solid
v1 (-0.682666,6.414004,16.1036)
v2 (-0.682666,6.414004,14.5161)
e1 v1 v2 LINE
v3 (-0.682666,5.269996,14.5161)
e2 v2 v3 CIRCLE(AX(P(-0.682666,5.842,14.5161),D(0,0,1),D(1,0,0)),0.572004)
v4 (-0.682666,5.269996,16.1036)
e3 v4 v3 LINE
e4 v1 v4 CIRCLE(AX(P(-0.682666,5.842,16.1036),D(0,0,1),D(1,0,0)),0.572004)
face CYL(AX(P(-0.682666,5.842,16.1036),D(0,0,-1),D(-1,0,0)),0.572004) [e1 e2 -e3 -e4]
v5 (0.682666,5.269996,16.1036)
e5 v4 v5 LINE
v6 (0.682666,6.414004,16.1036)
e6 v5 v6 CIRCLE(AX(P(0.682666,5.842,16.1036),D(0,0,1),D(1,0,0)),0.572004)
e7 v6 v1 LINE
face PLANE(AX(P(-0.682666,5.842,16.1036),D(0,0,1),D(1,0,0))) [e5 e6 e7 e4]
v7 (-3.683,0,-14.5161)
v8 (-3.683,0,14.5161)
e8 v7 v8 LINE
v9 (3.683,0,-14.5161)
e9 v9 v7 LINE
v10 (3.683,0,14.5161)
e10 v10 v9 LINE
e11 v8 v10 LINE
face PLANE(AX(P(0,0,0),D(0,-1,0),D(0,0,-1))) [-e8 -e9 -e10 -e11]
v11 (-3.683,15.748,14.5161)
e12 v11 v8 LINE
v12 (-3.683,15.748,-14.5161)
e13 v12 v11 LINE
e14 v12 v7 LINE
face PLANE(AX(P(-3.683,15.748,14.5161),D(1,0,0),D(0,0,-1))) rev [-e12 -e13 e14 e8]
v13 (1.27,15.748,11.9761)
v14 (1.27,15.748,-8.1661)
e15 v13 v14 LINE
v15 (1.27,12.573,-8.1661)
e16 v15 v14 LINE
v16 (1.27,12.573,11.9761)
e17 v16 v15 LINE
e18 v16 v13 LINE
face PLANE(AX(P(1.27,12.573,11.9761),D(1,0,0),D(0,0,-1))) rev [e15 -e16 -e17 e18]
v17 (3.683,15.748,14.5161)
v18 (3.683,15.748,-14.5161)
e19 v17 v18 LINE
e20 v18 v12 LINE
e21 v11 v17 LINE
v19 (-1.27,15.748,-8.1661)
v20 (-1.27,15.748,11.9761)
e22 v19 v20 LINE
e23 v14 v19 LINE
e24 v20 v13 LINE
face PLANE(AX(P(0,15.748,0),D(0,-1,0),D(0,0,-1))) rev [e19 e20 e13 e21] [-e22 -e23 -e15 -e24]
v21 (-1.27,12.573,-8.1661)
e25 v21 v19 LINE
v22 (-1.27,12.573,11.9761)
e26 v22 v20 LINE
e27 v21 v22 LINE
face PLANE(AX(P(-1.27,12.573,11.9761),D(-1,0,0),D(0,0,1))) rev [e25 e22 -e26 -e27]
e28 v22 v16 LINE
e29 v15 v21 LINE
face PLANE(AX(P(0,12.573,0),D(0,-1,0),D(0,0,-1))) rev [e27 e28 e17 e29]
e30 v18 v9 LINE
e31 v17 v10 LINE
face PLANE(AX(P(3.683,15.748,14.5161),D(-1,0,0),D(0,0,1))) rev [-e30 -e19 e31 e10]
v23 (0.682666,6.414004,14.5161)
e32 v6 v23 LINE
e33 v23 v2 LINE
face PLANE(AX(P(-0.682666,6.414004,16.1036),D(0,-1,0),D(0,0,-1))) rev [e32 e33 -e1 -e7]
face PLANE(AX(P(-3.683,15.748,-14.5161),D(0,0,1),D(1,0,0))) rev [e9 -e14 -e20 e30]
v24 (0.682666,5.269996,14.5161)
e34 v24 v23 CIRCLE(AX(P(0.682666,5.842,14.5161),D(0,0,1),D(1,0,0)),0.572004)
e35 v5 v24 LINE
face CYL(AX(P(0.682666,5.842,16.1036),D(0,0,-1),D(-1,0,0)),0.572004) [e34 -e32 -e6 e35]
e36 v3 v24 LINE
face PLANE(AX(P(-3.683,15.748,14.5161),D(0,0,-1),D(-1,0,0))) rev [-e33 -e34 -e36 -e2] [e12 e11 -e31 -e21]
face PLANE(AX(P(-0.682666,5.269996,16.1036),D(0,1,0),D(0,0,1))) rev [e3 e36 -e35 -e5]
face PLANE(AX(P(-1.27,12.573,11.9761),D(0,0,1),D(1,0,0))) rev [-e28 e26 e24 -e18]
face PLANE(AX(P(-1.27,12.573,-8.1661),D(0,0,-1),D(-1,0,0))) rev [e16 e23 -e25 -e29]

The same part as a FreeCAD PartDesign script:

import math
import FreeCAD as App
import Part
import Sketcher
Q = App.Units.Quantity

doc = App.newDocument("Part")
params = doc.addObject("Spreadsheet::Sheet", "Params")
for row, (alias, value) in enumerate([
    ("sketch1_width", "0.29 in"),
    ("sketch1_height", "1.143 in"),
    ("pad1_length", "0.62 in"),
    ("sketch2_width", "0.1 in"),
    ("sketch2_height", "0.793 in"),
    ("pocket1_length", "0.125 in"),
    ("pad2_length", "0.0625 in"),
], start=1):
    params.set(f"A{row}", alias)
    params.set(f"B{row}", "=" + value)
    params.setAlias(f"B{row}", alias)

body = doc.addObject("PartDesign::Body", "Body")

# Sketch on XZ plane
sketch1 = doc.addObject("Sketcher::SketchObject", "Sketch")
body.addObject(sketch1)
sketch1.AttachmentSupport = (doc.XZ_Plane, [""])
sketch1.MapMode = "FlatFace"
sketch1.addGeometry([
    Part.LineSegment(App.Vector(-4, -15, 0), App.Vector(-4, 15, 0)),
    Part.LineSegment(App.Vector(-4, 15, 0), App.Vector(4, 15, 0)),
    Part.LineSegment(App.Vector(4, 15, 0), App.Vector(4, -15, 0)),
    Part.LineSegment(App.Vector(4, -15, 0), App.Vector(-4, -15, 0)),
], False)
sketch1.addConstraint([
    Sketcher.Constraint("Coincident", 0, 2, 1, 1),
    Sketcher.Constraint("Coincident", 1, 2, 2, 1),
    Sketcher.Constraint("Coincident", 2, 2, 3, 1),
    Sketcher.Constraint("Coincident", 3, 2, 0, 1),
    Sketcher.Constraint("Vertical", 0),
    Sketcher.Constraint("Horizontal", 1),
    Sketcher.Constraint("Vertical", 2),
    Sketcher.Constraint("Horizontal", 3),
    Sketcher.Constraint("Symmetric", 0, 2, 2, 2, -1, 1),
    Sketcher.Constraint("DistanceX", 1, 1, 1, 2, Q("0.29 in")),
    Sketcher.Constraint("DistanceY", 0, 1, 0, 2, Q("1.143 in")),
])
sketch1.setExpression("Constraints[9]", "Params.sketch1_width")
sketch1.setExpression("Constraints[10]", "Params.sketch1_height")
pad1 = doc.addObject("PartDesign::Pad", "Pad")
body.addObject(pad1)
pad1.Profile = sketch1
pad1.setExpression("Length", "Params.pad1_length")
pad1.Reversed = True

# Sketch on XZ plane
sketch2 = doc.addObject("Sketcher::SketchObject", "Sketch001")
body.addObject(sketch2)
sketch2.AttachmentSupport = (doc.XZ_Plane, [""])
sketch2.MapMode = "FlatFace"
sketch2.AttachmentOffset = App.Placement(App.Vector(0, 0, -0.62 * 25.4), App.Rotation())
sketch2.addGeometry([
    Part.LineSegment(App.Vector(-1.3, -8.2, 0), App.Vector(-1.3, 12, 0)),
    Part.LineSegment(App.Vector(-1.3, 12, 0), App.Vector(1.3, 12, 0)),
    Part.LineSegment(App.Vector(1.3, 12, 0), App.Vector(1.3, -8.2, 0)),
    Part.LineSegment(App.Vector(1.3, -8.2, 0), App.Vector(-1.3, -8.2, 0)),
], False)
sketch2.addConstraint([
    Sketcher.Constraint("Coincident", 0, 2, 1, 1),
    Sketcher.Constraint("Coincident", 1, 2, 2, 1),
    Sketcher.Constraint("Coincident", 2, 2, 3, 1),
    Sketcher.Constraint("Coincident", 3, 2, 0, 1),
    Sketcher.Constraint("Vertical", 0),
    Sketcher.Constraint("Horizontal", 1),
    Sketcher.Constraint("Vertical", 2),
    Sketcher.Constraint("Horizontal", 3),
    Sketcher.Constraint("DistanceX", 1, 1, 1, 2, Q("0.1 in")),
    Sketcher.Constraint("DistanceY", 0, 1, 0, 2, Q("0.793 in")),
    Sketcher.Constraint("DistanceX", 0, 2, -1, 1, Q("0.05 in")),
    Sketcher.Constraint("DistanceY", -1, 1, 0, 2, Q("0.4715 in")),
])
sketch2.setExpression("Constraints[8]", "Params.sketch2_width")
sketch2.setExpression("Constraints[9]", "Params.sketch2_height")
pocket1 = doc.addObject("PartDesign::Pocket", "Pocket")
body.addObject(pocket1)
pocket1.Profile = sketch2
pocket1.setExpression("Length", "Params.pocket1_length")
pocket1.Reversed = True

# Sketch on XY plane
sketch3 = doc.addObject("Sketcher::SketchObject", "Sketch002")
body.addObject(sketch3)
sketch3.AttachmentSupport = (doc.XY_Plane, [""])
sketch3.MapMode = "FlatFace"
sketch3.AttachmentOffset = App.Placement(App.Vector(0, 0, 0.5715 * 25.4), App.Rotation())
sketch3.addGeometry([
    Part.LineSegment(App.Vector(0.7, 6.4, 0), App.Vector(-0.7, 6.4, 0)),
    Part.ArcOfCircle(Part.Circle(App.Vector(-0.7, 5.8, 0), App.Vector(0, 0, 1), 0.6), math.radians(90), math.radians(270)),
    Part.LineSegment(App.Vector(-0.7, 5.3, 0), App.Vector(0.7, 5.3, 0)),
    Part.ArcOfCircle(Part.Circle(App.Vector(0.7, 5.8, 0), App.Vector(0, 0, 1), 0.6), math.radians(-90), math.radians(90)),
], False)
sketch3.addConstraint([
    Sketcher.Constraint("Tangent", 0, 2, 1, 1),
    Sketcher.Constraint("Tangent", 1, 2, 2, 1),
    Sketcher.Constraint("Tangent", 2, 2, 3, 1),
    Sketcher.Constraint("Tangent", 3, 2, 0, 1),
    Sketcher.Constraint("Horizontal", 0),
    Sketcher.Constraint("Horizontal", 2),
    Sketcher.Constraint("DistanceY", -1, 1, 1, 3, Q("0.23 in")),
    Sketcher.Constraint("Radius", 1, Q("0.572004 mm")),
    Sketcher.Constraint("DistanceX", 0, 2, 0, 1, Q("1.365333 mm")),
    Sketcher.Constraint("DistanceX", 1, 3, -1, 1, Q("0.682666 mm")),
])
pad2 = doc.addObject("PartDesign::Pad", "Pad001")
body.addObject(pad2)
pad2.Profile = sketch3
pad2.setExpression("Length", "Params.pad2_length")

doc.recompute()
